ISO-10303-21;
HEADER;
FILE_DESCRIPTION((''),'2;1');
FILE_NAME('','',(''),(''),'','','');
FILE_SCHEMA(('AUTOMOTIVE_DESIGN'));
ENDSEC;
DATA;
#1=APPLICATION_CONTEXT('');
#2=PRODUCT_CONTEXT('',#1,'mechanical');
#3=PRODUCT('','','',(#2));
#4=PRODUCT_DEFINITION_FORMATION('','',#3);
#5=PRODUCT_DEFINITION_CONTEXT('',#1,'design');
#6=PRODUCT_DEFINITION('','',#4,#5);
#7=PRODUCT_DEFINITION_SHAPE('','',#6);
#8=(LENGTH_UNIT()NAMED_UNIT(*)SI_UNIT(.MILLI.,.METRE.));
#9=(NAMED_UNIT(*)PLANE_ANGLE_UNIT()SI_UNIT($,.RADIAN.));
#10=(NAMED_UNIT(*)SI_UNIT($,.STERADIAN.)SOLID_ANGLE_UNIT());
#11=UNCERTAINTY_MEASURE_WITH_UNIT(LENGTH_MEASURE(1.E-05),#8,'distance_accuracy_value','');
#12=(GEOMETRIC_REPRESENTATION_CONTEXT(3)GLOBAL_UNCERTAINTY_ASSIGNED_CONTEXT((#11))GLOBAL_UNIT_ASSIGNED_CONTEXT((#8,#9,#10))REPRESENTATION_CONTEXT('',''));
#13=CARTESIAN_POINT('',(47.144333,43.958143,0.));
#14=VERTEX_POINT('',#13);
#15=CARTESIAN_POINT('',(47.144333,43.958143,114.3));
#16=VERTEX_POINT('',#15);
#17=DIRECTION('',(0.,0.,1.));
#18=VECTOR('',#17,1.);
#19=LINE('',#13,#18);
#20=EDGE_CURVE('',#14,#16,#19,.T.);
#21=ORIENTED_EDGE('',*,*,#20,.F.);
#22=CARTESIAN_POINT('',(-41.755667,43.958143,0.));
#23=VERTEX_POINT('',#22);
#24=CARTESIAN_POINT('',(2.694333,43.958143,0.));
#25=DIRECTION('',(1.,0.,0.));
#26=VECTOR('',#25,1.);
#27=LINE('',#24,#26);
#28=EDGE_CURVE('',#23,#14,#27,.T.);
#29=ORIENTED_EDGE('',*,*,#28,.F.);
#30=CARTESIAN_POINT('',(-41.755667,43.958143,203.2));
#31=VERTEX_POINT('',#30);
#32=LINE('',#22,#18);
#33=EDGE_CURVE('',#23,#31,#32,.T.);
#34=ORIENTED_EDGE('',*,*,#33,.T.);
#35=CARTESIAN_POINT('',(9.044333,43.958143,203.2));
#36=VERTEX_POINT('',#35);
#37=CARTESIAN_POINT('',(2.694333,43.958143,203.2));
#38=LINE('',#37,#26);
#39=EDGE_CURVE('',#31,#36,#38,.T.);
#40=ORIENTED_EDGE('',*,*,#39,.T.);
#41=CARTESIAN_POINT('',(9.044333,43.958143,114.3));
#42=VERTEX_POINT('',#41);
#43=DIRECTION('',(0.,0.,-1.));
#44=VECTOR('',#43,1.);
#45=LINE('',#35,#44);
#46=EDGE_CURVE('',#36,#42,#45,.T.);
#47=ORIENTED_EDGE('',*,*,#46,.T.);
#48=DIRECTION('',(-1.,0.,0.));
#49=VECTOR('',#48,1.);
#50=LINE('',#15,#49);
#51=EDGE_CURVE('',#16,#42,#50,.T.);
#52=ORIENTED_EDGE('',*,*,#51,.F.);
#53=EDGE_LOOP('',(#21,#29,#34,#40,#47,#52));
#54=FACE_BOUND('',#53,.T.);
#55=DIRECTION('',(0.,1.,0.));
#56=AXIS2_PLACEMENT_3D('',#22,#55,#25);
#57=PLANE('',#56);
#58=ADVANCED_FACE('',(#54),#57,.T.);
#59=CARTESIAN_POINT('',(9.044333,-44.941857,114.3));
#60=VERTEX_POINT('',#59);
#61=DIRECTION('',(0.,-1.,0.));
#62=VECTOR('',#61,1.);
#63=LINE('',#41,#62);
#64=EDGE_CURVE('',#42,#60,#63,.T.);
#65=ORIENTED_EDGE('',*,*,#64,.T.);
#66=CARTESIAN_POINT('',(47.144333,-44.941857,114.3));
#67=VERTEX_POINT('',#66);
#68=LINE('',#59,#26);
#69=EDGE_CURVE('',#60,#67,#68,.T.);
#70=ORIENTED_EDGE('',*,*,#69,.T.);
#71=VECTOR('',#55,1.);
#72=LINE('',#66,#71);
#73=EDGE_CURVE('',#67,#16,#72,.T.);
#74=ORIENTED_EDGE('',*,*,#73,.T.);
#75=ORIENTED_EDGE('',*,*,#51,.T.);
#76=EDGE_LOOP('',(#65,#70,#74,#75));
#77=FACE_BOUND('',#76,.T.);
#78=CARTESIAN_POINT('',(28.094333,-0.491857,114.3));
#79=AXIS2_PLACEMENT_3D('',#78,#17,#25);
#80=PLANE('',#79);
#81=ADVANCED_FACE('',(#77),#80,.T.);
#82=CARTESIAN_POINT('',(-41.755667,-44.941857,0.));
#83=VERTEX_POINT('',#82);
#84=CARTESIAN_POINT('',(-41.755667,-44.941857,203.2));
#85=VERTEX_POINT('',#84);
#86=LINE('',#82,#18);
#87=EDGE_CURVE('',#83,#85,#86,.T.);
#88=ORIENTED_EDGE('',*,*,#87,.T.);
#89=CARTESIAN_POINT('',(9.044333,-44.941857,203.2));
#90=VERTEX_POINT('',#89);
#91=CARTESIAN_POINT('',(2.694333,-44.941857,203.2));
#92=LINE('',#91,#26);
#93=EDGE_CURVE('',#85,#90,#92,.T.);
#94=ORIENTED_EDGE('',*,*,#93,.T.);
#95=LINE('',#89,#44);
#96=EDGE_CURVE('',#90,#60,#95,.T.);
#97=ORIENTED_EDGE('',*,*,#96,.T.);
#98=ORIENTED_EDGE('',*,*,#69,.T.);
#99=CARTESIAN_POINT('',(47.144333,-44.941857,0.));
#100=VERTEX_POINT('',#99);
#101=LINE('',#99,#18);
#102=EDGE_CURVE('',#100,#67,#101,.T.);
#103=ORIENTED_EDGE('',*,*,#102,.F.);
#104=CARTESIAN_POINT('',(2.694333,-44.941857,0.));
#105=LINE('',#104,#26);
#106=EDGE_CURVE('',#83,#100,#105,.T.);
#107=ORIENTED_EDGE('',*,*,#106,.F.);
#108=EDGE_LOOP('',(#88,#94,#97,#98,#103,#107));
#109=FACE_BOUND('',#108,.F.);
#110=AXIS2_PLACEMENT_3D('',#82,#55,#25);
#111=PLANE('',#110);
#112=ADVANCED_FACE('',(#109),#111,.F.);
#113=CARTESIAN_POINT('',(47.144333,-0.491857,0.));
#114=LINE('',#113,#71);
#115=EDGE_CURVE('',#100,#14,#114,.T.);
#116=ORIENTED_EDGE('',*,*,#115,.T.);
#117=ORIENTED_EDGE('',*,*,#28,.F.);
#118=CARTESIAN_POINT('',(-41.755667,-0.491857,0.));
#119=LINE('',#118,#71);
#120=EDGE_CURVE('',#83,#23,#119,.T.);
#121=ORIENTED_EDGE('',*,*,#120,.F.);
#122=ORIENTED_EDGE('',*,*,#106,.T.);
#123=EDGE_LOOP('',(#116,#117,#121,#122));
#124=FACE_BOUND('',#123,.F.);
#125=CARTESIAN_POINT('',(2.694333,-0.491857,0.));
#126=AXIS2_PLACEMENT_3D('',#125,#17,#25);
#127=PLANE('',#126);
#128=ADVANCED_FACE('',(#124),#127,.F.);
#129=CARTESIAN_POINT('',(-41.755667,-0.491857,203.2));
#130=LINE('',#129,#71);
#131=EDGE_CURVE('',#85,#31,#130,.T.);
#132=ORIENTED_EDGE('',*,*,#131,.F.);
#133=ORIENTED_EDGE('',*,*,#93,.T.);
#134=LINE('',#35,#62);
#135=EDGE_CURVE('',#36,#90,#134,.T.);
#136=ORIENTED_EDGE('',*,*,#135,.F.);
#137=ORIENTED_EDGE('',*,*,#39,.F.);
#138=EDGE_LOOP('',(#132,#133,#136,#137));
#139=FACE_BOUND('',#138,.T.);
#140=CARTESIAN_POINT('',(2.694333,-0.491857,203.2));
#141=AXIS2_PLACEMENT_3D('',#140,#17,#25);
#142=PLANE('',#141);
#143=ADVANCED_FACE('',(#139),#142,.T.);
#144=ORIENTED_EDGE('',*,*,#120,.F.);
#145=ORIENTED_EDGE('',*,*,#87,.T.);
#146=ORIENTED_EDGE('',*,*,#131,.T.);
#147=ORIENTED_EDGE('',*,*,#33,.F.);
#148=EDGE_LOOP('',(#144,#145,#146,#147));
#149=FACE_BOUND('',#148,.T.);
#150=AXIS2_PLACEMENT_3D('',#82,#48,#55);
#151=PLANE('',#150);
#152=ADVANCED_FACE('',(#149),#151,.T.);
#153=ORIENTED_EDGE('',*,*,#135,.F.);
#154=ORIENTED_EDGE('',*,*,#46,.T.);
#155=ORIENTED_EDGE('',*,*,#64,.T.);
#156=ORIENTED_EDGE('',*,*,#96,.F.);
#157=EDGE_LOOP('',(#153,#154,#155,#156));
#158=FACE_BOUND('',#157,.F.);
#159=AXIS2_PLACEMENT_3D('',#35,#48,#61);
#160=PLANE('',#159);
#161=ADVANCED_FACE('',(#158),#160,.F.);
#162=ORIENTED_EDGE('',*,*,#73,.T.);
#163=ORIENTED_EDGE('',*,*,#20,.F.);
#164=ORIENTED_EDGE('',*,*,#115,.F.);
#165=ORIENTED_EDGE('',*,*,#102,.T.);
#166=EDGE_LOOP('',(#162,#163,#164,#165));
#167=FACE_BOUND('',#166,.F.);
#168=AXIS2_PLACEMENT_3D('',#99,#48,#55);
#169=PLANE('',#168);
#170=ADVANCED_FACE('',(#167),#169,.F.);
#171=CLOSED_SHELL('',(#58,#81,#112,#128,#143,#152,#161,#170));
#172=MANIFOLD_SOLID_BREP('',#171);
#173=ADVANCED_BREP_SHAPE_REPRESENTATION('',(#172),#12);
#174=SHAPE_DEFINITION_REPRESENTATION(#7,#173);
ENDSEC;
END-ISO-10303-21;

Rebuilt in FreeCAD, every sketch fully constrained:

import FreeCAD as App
import Part
import Sketcher
Q = App.Units.Quantity

doc = App.newDocument("Part")
params = doc.addObject("Spreadsheet::Sheet", "Params")
for row, (alias, value) in enumerate([
    ("sketch1_width", "3.5 in"),
    ("pad1_length", "8 in"),
    ("sketch2_width", "1.5 in"),
    ("sketch2_height", "3.5 in"),
    ("pocket1_length", "3.5 in"),
], start=1):
    params.set(f"A{row}", alias)
    params.set(f"B{row}", "=" + value)
    params.setAlias(f"B{row}", alias)

body = doc.addObject("PartDesign::Body", "Body")

sketch1 = doc.addObject("Sketcher::SketchObject", "Sketch")
body.addObject(sketch1)
sketch1.AttachmentSupport = (doc.XY_Plane, [""])
sketch1.MapMode = "FlatFace"
sketch1.addGeometry([
    Part.LineSegment(App.Vector(-42, 44, 0), App.Vector(-42, -45, 0)),
    Part.LineSegment(App.Vector(-42, -45, 0), App.Vector(47, -45, 0)),
    Part.LineSegment(App.Vector(47, -45, 0), App.Vector(47, 44, 0)),
    Part.LineSegment(App.Vector(47, 44, 0), App.Vector(-42, 44, 0)),
], False)
sketch1.addConstraint([
    Sketcher.Constraint("Coincident", 0, 2, 1, 1),
    Sketcher.Constraint("Coincident", 1, 2, 2, 1),
    Sketcher.Constraint("Coincident", 2, 2, 3, 1),
    Sketcher.Constraint("Coincident", 3, 2, 0, 1),
    Sketcher.Constraint("Vertical", 0),
    Sketcher.Constraint("Horizontal", 1),
    Sketcher.Constraint("Vertical", 2),
    Sketcher.Constraint("Horizontal", 3),
    Sketcher.Constraint("Equal", 3, 0),
    Sketcher.Constraint("DistanceX", 1, 1, 1, 2, Q("3.5 in")),
    Sketcher.Constraint("DistanceX", 0, 2, -1, 1, Q("41.755667 mm")),
    Sketcher.Constraint("DistanceY", 0, 2, -1, 1, Q("44.941857 mm")),
])
sketch1.setExpression("Constraints[9]", "Params.sketch1_width")
pad1 = doc.addObject("PartDesign::Pad", "Pad")
body.addObject(pad1)
pad1.Profile = sketch1
pad1.setExpression("Length", "Params.pad1_length")

sketch2 = doc.addObject("Sketcher::SketchObject", "Sketch001")
body.addObject(sketch2)
sketch2.AttachmentSupport = (doc.XY_Plane, [""])
sketch2.MapMode = "FlatFace"
sketch2.AttachmentOffset = App.Placement(App.Vector(0, 0, 8 * 25.4), App.Rotation())
sketch2.addGeometry([
    Part.LineSegment(App.Vector(47, 44, 0), App.Vector(9, 44, 0)),
    Part.LineSegment(App.Vector(9, 44, 0), App.Vector(9, -45, 0)),
    Part.LineSegment(App.Vector(9, -45, 0), App.Vector(47, -45, 0)),
    Part.LineSegment(App.Vector(47, -45, 0), App.Vector(47, 44, 0)),
], False)
sketch2.addConstraint([
    Sketcher.Constraint("Coincident", 0, 2, 1, 1),
    Sketcher.Constraint("Coincident", 1, 2, 2, 1),
    Sketcher.Constraint("Coincident", 2, 2, 3, 1),
    Sketcher.Constraint("Coincident", 3, 2, 0, 1),
    Sketcher.Constraint("Horizontal", 0),
    Sketcher.Constraint("Vertical", 1),
    Sketcher.Constraint("Horizontal", 2),
    Sketcher.Constraint("Vertical", 3),
    Sketcher.Constraint("DistanceX", 0, 2, 0, 1, Q("1.5 in")),
    Sketcher.Constraint("DistanceY", 1, 2, 1, 1, Q("3.5 in")),
    Sketcher.Constraint("DistanceX", -1, 1, 0, 2, Q("9.044333 mm")),
    Sketcher.Constraint("DistanceY", -1, 1, 0, 2, Q("43.958143 mm")),
])
sketch2.setExpression("Constraints[8]", "Params.sketch2_width")
sketch2.setExpression("Constraints[9]", "Params.sketch2_height")
pocket1 = doc.addObject("PartDesign::Pocket", "Pocket")
body.addObject(pocket1)
pocket1.Profile = sketch2
pocket1.setExpression("Length", "Params.pocket1_length")

doc.recompute()
